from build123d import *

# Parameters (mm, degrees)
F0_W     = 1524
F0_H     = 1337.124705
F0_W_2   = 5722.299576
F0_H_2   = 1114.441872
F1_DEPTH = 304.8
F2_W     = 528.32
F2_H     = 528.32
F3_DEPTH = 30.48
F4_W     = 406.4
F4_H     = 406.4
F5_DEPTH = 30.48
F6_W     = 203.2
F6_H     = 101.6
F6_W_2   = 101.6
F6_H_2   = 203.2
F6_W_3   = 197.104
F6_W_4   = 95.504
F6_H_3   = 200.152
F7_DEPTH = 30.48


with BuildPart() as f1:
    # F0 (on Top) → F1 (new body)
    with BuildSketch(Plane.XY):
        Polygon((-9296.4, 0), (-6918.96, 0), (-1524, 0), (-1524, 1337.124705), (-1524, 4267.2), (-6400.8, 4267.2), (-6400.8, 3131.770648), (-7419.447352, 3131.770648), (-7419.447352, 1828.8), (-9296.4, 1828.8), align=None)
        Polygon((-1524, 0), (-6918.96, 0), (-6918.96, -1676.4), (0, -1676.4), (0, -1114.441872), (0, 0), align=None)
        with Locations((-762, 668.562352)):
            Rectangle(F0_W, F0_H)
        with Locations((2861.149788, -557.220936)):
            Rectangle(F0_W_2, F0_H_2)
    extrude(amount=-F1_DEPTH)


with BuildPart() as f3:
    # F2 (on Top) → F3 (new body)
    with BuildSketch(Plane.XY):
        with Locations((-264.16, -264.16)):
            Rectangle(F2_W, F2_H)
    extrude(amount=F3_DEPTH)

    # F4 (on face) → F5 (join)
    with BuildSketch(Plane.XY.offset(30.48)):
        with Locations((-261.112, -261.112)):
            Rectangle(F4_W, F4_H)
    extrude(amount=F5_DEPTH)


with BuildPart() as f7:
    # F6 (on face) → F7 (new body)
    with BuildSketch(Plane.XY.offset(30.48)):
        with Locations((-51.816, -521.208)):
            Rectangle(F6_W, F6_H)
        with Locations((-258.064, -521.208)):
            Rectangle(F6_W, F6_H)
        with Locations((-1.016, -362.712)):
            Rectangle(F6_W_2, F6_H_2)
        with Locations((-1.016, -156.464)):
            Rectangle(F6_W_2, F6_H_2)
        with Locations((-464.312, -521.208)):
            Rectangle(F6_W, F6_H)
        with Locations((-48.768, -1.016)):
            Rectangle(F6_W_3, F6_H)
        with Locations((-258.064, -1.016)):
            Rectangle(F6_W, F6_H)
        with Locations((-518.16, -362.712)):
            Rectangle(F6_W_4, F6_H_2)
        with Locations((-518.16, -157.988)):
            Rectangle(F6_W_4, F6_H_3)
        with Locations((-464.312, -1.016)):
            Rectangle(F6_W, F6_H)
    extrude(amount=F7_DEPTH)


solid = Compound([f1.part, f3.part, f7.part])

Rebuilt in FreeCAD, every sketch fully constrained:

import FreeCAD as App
import Part
import Sketcher
Q = App.Units.Quantity

doc = App.newDocument("Part")
body = doc.addObject("PartDesign::Body", "Body")

sketch1 = body.newObject("Sketcher::SketchObject", "Sketch")
sketch1.AttachmentSupport = (doc.getObject("XY_Plane"), [""])
sketch1.MapMode = "FlatFace"
sketch1.addGeometry([
    Part.LineSegment(App.Vector(-9296, 1829, 0), App.Vector(-9296, 0, 0)),
    Part.LineSegment(App.Vector(-9296, 0, 0), App.Vector(-6919, 0, 0)),
    Part.LineSegment(App.Vector(-6919, 0, 0), App.Vector(-6919, -1676, 0)),
    Part.LineSegment(App.Vector(-6919, -1676, 0), App.Vector(0, -1676, 0)),
    Part.LineSegment(App.Vector(0, -1676, 0), App.Vector(0, -1114, 0)),
    Part.LineSegment(App.Vector(0, -1114, 0), App.Vector(5722, -1114, 0)),
    Part.LineSegment(App.Vector(5722, -1114, 0), App.Vector(5722, 0, 0)),
    Part.LineSegment(App.Vector(5722, 0, 0), App.Vector(0, 0, 0)),
    Part.LineSegment(App.Vector(0, 0, 0), App.Vector(0, 1337, 0)),
    Part.LineSegment(App.Vector(0, 1337, 0), App.Vector(-1524, 1337, 0)),
    Part.LineSegment(App.Vector(-1524, 1337, 0), App.Vector(-1524, 4267, 0)),
    Part.LineSegment(App.Vector(-1524, 4267, 0), App.Vector(-6401, 4267, 0)),
    Part.LineSegment(App.Vector(-6401, 4267, 0), App.Vector(-6401, 3132, 0)),
    Part.LineSegment(App.Vector(-6401, 3132, 0), App.Vector(-7419, 3132, 0)),
    Part.LineSegment(App.Vector(-7419, 3132, 0), App.Vector(-7419, 1829, 0)),
    Part.LineSegment(App.Vector(-7419, 1829, 0), App.Vector(-9296, 1829, 0)),
], False)
sketch1.addConstraint([
    Sketcher.Constraint("Coincident", 0, 2, 1, 1),
    Sketcher.Constraint("Coincident", 1, 2, 2, 1),
    Sketcher.Constraint("Coincident", 2, 2, 3, 1),
    Sketcher.Constraint("Coincident", 3, 2, 4, 1),
    Sketcher.Constraint("Coincident", 4, 2, 5, 1),
    Sketcher.Constraint("Coincident", 5, 2, 6, 1),
    Sketcher.Constraint("Coincident", 6, 2, 7, 1),
    Sketcher.Constraint("Coincident", 7, 2, 8, 1),
    Sketcher.Constraint("Coincident", 8, 2, 9, 1),
    Sketcher.Constraint("Coincident", 9, 2, 10, 1),
    Sketcher.Constraint("Coincident", 10, 2, 11, 1),
    Sketcher.Constraint("Coincident", 11, 2, 12, 1),
    Sketcher.Constraint("Coincident", 12, 2, 13, 1),
    Sketcher.Constraint("Coincident", 13, 2, 14, 1),
    Sketcher.Constraint("Coincident", 14, 2, 15, 1),
    Sketcher.Constraint("Coincident", 15, 2, 0, 1),
    Sketcher.Constraint("Vertical", 0),
    Sketcher.Constraint("Horizontal", 1),
    Sketcher.Constraint("Vertical", 2),
    Sketcher.Constraint("Horizontal", 3),
    Sketcher.Constraint("Vertical", 4),
    Sketcher.Constraint("Horizontal", 5),
    Sketcher.Constraint("Vertical", 6),
    Sketcher.Constraint("Horizontal", 7),
    Sketcher.Constraint("Vertical", 8),
    Sketcher.Constraint("Horizontal", 9),
    Sketcher.Constraint("Vertical", 10),
    Sketcher.Constraint("Horizontal", 11),
    Sketcher.Constraint("Vertical", 12),
    Sketcher.Constraint("Horizontal", 13),
    Sketcher.Constraint("Vertical", 14),
    Sketcher.Constraint("Horizontal", 15),
    Sketcher.Constraint("Coincident", 7, 2, -1, 1),
    Sketcher.Constraint("PointOnObject", 0, 2, -1),
    Sketcher.Constraint("PointOnObject", 3, 2, -2),
    Sketcher.Constraint("DistanceX", 9, 2, 9, 1, Q("60 in")),
    Sketcher.Constraint("DistanceX", 11, 2, 11, 1, Q("192 in")),
    Sketcher.Constraint("DistanceY", 0, 2, 0, 1, Q("72 in")),
    Sketcher.Constraint("DistanceY", 2, 2, 2, 1, Q("66 in")),
    Sketcher.Constraint("DistanceX", 1, 1, 1, 2, Q("93.6 in")),
    Sketcher.Constraint("DistanceX", 3, 1, 3, 2, Q("272.4 in")),
    Sketcher.Constraint("DistanceY", -1, 1, 10, 2, Q("168 in")),
    Sketcher.Constraint("DistanceX", 13, 2, 13, 1, 1018.647352),
    Sketcher.Constraint("DistanceY", 4, 1, 4, 2, 561.958128),
    Sketcher.Constraint("DistanceY", 12, 2, 12, 1, 1135.429352),
    Sketcher.Constraint("DistanceX", 5, 1, 5, 2, 5722.299576),
    Sketcher.Constraint("DistanceY", 8, 1, 8, 2, 1337.124705),
])
pad1 = body.newObject("PartDesign::Pad", "Pad")
pad1.Profile = sketch1
pad1.Length = Q("12 in")
pad1.Reversed = True
body2 = doc.addObject("PartDesign::Body", "Body001")

sketch2 = body2.newObject("Sketcher::SketchObject", "Sketch001")
sketch2.AttachmentSupport = (doc.getObject("XY_Plane001"), [""])
sketch2.MapMode = "FlatFace"
sketch2.addGeometry([
    Part.LineSegment(App.Vector(-528, 0, 0), App.Vector(-528, -528, 0)),
    Part.LineSegment(App.Vector(-528, -528, 0), App.Vector(0, -528, 0)),
    Part.LineSegment(App.Vector(0, -528, 0), App.Vector(0, 0, 0)),
    Part.LineSegment(App.Vector(0, 0, 0), App.Vector(-528, 0, 0)),
], False)
sketch2.addConstraint([
    Sketcher.Constraint("Coincident", 0, 2, 1, 1),
    Sketcher.Constraint("Coincident", 1, 2, 2, 1),
    Sketcher.Constraint("Coincident", 2, 2, 3, 1),
    Sketcher.Constraint("Coincident", 3, 2, 0, 1),
    Sketcher.Constraint("Vertical", 0),
    Sketcher.Constraint("Horizontal", 1),
    Sketcher.Constraint("Vertical", 2),
    Sketcher.Constraint("Horizontal", 3),
    Sketcher.Constraint("Coincident", 2, 2, -1, 1),
    Sketcher.Constraint("Equal", 3, 0),
    Sketcher.Constraint("DistanceX", 1, 1, 1, 2, Q("20.8 in")),
])
pad2 = body2.newObject("PartDesign::Pad", "Pad001")
pad2.Profile = sketch2
pad2.Length = Q("1.2 in")

sketch3 = body2.newObject("Sketcher::SketchObject", "Sketch002")
sketch3.AttachmentSupport = (doc.getObject("XY_Plane001"), [""])
sketch3.MapMode = "FlatFace"
sketch3.AttachmentOffset = App.Placement(App.Vector(0, 0, 1.2 * 25.4), App.Rotation())
sketch3.addGeometry([
    Part.LineSegment(App.Vector(-464, -58, 0), App.Vector(-464, -464, 0)),
    Part.LineSegment(App.Vector(-464, -464, 0), App.Vector(-58, -464, 0)),
    Part.LineSegment(App.Vector(-58, -464, 0), App.Vector(-58, -58, 0)),
    Part.LineSegment(App.Vector(-58, -58, 0), App.Vector(-464, -58, 0)),
], False)
sketch3.addConstraint([
    Sketcher.Constraint("Coincident", 0, 2, 1, 1),
    Sketcher.Constraint("Coincident", 1, 2, 2, 1),
    Sketcher.Constraint("Coincident", 2, 2, 3, 1),
    Sketcher.Constraint("Coincident", 3, 2, 0, 1),
    Sketcher.Constraint("Vertical", 0),
    Sketcher.Constraint("Horizontal", 1),
    Sketcher.Constraint("Vertical", 2),
    Sketcher.Constraint("Horizontal", 3),
    Sketcher.Constraint("Equal", 3, 0),
    Sketcher.Constraint("DistanceX", 1, 1, 1, 2, Q("16 in")),
    Sketcher.Constraint("DistanceX", 0, 2, -1, 1, Q("18.28 in")),
    Sketcher.Constraint("DistanceY", 0, 2, -1, 1, Q("18.28 in")),
])
pad3 = body2.newObject("PartDesign::Pad", "Pad002")
pad3.Profile = sketch3
pad3.Length = Q("1.2 in")
body3 = doc.addObject("PartDesign::Body", "Body002")
body3.AllowCompound = True

sketch4 = body3.newObject("Sketcher::SketchObject", "Sketch003")
sketch4.AttachmentSupport = (doc.getObject("XY_Plane002"), [""])
sketch4.MapMode = "FlatFace"
sketch4.AttachmentOffset = App.Placement(App.Vector(0, 0, 1.2 * 25.4), App.Rotation())
sketch4.addGeometry([
    Part.LineSegment(App.Vector(-153, -470, 0), App.Vector(-153, -572, 0)),
    Part.LineSegment(App.Vector(-153, -572, 0), App.Vector(50, -572, 0)),
    Part.LineSegment(App.Vector(50, -572, 0), App.Vector(50, -470, 0)),
    Part.LineSegment(App.Vector(50, -470, 0), App.Vector(-153, -470, 0)),
    Part.LineSegment(App.Vector(-360, -470, 0), App.Vector(-360, -572, 0)),
    Part.LineSegment(App.Vector(-360, -572, 0), App.Vector(-156, -572, 0)),
    Part.LineSegment(App.Vector(-156, -572, 0), App.Vector(-156, -470, 0)),
    Part.LineSegment(App.Vector(-156, -470, 0), App.Vector(-360, -470, 0)),
    Part.LineSegment(App.Vector(-52, -261, 0), App.Vector(-52, -464, 0)),
    Part.LineSegment(App.Vector(-52, -464, 0), App.Vector(50, -464, 0)),
    Part.LineSegment(App.Vector(50, -464, 0), App.Vector(50, -261, 0)),
    Part.LineSegment(App.Vector(50, -261, 0), App.Vector(-52, -261, 0)),
    Part.LineSegment(App.Vector(-52, -55, 0), App.Vector(-52, -258, 0)),
    Part.LineSegment(App.Vector(-52, -258, 0), App.Vector(50, -258, 0)),
    Part.LineSegment(App.Vector(50, -258, 0), App.Vector(50, -55, 0)),
    Part.LineSegment(App.Vector(50, -55, 0), App.Vector(-52, -55, 0)),
    Part.LineSegment(App.Vector(-566, -470, 0), App.Vector(-566, -572, 0)),
    Part.LineSegment(App.Vector(-566, -572, 0), App.Vector(-363, -572, 0)),
    Part.LineSegment(App.Vector(-363, -572, 0), App.Vector(-363, -470, 0)),
    Part.LineSegment(App.Vector(-363, -470, 0), App.Vector(-566, -470, 0)),
    Part.LineSegment(App.Vector(-147, 50, 0), App.Vector(-147, -52, 0)),
    Part.LineSegment(App.Vector(-147, -52, 0), App.Vector(50, -52, 0)),
    Part.LineSegment(App.Vector(50, -52, 0), App.Vector(50, 50, 0)),
    Part.LineSegment(App.Vector(50, 50, 0), App.Vector(-147, 50, 0)),
    Part.LineSegment(App.Vector(-360, 50, 0), App.Vector(-360, -52, 0)),
    Part.LineSegment(App.Vector(-360, -52, 0), App.Vector(-156, -52, 0)),
    Part.LineSegment(App.Vector(-156, -52, 0), App.Vector(-156, 50, 0)),
    Part.LineSegment(App.Vector(-156, 50, 0), App.Vector(-360, 50, 0)),
    Part.LineSegment(App.Vector(-566, -261, 0), App.Vector(-566, -464, 0)),
    Part.LineSegment(App.Vector(-566, -464, 0), App.Vector(-470, -464, 0)),
    Part.LineSegment(App.Vector(-470, -464, 0), App.Vector(-470, -261, 0)),
    Part.LineSegment(App.Vector(-470, -261, 0), App.Vector(-566, -261, 0)),
    Part.LineSegment(App.Vector(-566, -58, 0), App.Vector(-566, -258, 0)),
    Part.LineSegment(App.Vector(-566, -258, 0), App.Vector(-470, -258, 0)),
    Part.LineSegment(App.Vector(-470, -258, 0), App.Vector(-470, -58, 0)),
    Part.LineSegment(App.Vector(-470, -58, 0), App.Vector(-566, -58, 0)),
    Part.LineSegment(App.Vector(-566, 50, 0), App.Vector(-566, -52, 0)),
    Part.LineSegment(App.Vector(-566, -52, 0), App.Vector(-363, -52, 0)),
    Part.LineSegment(App.Vector(-363, -52, 0), App.Vector(-363, 50, 0)),
    Part.LineSegment(App.Vector(-363, 50, 0), App.Vector(-566, 50, 0)),
], False)
sketch4.addConstraint([
    Sketcher.Constraint("Coincident", 0, 2, 1, 1),
    Sketcher.Constraint("Coincident", 1, 2, 2, 1),
    Sketcher.Constraint("Coincident", 2, 2, 3, 1),
    Sketcher.Constraint("Coincident", 3, 2, 0, 1),
    Sketcher.Constraint("Coincident", 4, 2, 5, 1),
    Sketcher.Constraint("Coincident", 5, 2, 6, 1),
    Sketcher.Constraint("Coincident", 6, 2, 7, 1),
    Sketcher.Constraint("Coincident", 7, 2, 4, 1),
    Sketcher.Constraint("Coincident", 8, 2, 9, 1),
    Sketcher.Constraint("Coincident", 9, 2, 10, 1),
    Sketcher.Constraint("Coincident", 10, 2, 11, 1),
    Sketcher.Constraint("Coincident", 11, 2, 8, 1),
    Sketcher.Constraint("Coincident", 12, 2, 13, 1),
    Sketcher.Constraint("Coincident", 13, 2, 14, 1),
    Sketcher.Constraint("Coincident", 14, 2, 15, 1),
    Sketcher.Constraint("Coincident", 15, 2, 12, 1),
    Sketcher.Constraint("Coincident", 16, 2, 17, 1),
    Sketcher.Constraint("Coincident", 17, 2, 18, 1),
    Sketcher.Constraint("Coincident", 18, 2, 19, 1),
    Sketcher.Constraint("Coincident", 19, 2, 16, 1),
    Sketcher.Constraint("Coincident", 20, 2, 21, 1),
    Sketcher.Constraint("Coincident", 21, 2, 22, 1),
    Sketcher.Constraint("Coincident", 22, 2, 23, 1),
    Sketcher.Constraint("Coincident", 23, 2, 20, 1),
    Sketcher.Constraint("Coincident", 24, 2, 25, 1),
    Sketcher.Constraint("Coincident", 25, 2, 26, 1),
    Sketcher.Constraint("Coincident", 26, 2, 27, 1),
    Sketcher.Constraint("Coincident", 27, 2, 24, 1),
    Sketcher.Constraint("Coincident", 28, 2, 29, 1),
    Sketcher.Constraint("Coincident", 29, 2, 30, 1),
    Sketcher.Constraint("Coincident", 30, 2, 31, 1),
    Sketcher.Constraint("Coincident", 31, 2, 28, 1),
    Sketcher.Constraint("Coincident", 32, 2, 33, 1),
    Sketcher.Constraint("Coincident", 33, 2, 34, 1),
    Sketcher.Constraint("Coincident", 34, 2, 35, 1),
    Sketcher.Constraint("Coincident", 35, 2, 32, 1),
    Sketcher.Constraint("Coincident", 36, 2, 37, 1),
    Sketcher.Constraint("Coincident", 37, 2, 38, 1),
    Sketcher.Constraint("Coincident", 38, 2, 39, 1),
    Sketcher.Constraint("Coincident", 39, 2, 36, 1),
    Sketcher.Constraint("Vertical", 0),
    Sketcher.Constraint("Horizontal", 1),
    Sketcher.Constraint("Vertical", 2),
    Sketcher.Constraint("Horizontal", 3),
    Sketcher.Constraint("Vertical", 4),
    Sketcher.Constraint("Horizontal", 5),
    Sketcher.Constraint("Vertical", 6),
    Sketcher.Constraint("Horizontal", 7),
    Sketcher.Constraint("Vertical", 8),
    Sketcher.Constraint("Horizontal", 9),
    Sketcher.Constraint("Vertical", 10),
    Sketcher.Constraint("Horizontal", 11),
    Sketcher.Constraint("Vertical", 12),
    Sketcher.Constraint("Horizontal", 13),
    Sketcher.Constraint("Vertical", 14),
    Sketcher.Constraint("Horizontal", 15),
    Sketcher.Constraint("Vertical", 16),
    Sketcher.Constraint("Horizontal", 17),
    Sketcher.Constraint("Vertical", 18),
    Sketcher.Constraint("Horizontal", 19),
    Sketcher.Constraint("Vertical", 20),
    Sketcher.Constraint("Horizontal", 21),
    Sketcher.Constraint("Vertical", 22),
    Sketcher.Constraint("Horizontal", 23),
    Sketcher.Constraint("Vertical", 24),
    Sketcher.Constraint("Horizontal", 25),
    Sketcher.Constraint("Vertical", 26),
    Sketcher.Constraint("Horizontal", 27),
    Sketcher.Constraint("Vertical", 28),
    Sketcher.Constraint("Horizontal", 29),
    Sketcher.Constraint("Vertical", 30),
    Sketcher.Constraint("Horizontal", 31),
    Sketcher.Constraint("Vertical", 32),
    Sketcher.Constraint("Horizontal", 33),
    Sketcher.Constraint("Vertical", 34),
    Sketcher.Constraint("Horizontal", 35),
    Sketcher.Constraint("Vertical", 36),
    Sketcher.Constraint("Horizontal", 37),
    Sketcher.Constraint("Vertical", 38),
    Sketcher.Constraint("Horizontal", 39),
    Sketcher.Constraint("Horizontal", 1, 2, 4, 2),
    Sketcher.Constraint("Horizontal", 3, 2, 6, 2),
    Sketcher.Constraint("Horizontal", 5, 2, 16, 2),
    Sketcher.Constraint("Horizontal", 7, 2, 18, 2),
    Sketcher.Constraint("Horizontal", 21, 2, 24, 2),
    Sketcher.Constraint("Horizontal", 23, 2, 26, 2),
    Sketcher.Constraint("Horizontal", 9, 2, 28, 2),
    Sketcher.Constraint("Horizontal", 11, 2, 30, 2),
    Sketcher.Constraint("Horizontal", 13, 2, 32, 2),
    Sketcher.Constraint("Horizontal", 25, 2, 36, 2),
    Sketcher.Constraint("Horizontal", 27, 2, 38, 2),
    Sketcher.Constraint("Vertical", 2, 2, 9, 2),
    Sketcher.Constraint("Vertical", 11, 2, 12, 2),
    Sketcher.Constraint("Vertical", 10, 2, 13, 2),
    Sketcher.Constraint("Vertical", 14, 2, 21, 2),
    Sketcher.Constraint("Vertical", 7, 2, 24, 2),
    Sketcher.Constraint("Vertical", 6, 2, 25, 2),
    Sketcher.Constraint("Vertical", 19, 2, 28, 2),
    Sketcher.Constraint("Vertical", 31, 2, 32, 2),
    Sketcher.Constraint("Vertical", 30, 2, 33, 2),
    Sketcher.Constraint("Vertical", 35, 2, 36, 2),
    Sketcher.Constraint("Vertical", 18, 2, 37, 2),
    Sketcher.Constraint("Equal", 3, 5),
    Sketcher.Constraint("Equal", 7, 17),
    Sketcher.Constraint("Equal", 15, 0),
    Sketcher.Constraint("Equal", 39, 8),
    Sketcher.Constraint("Equal", 10, 12),
    Sketcher.Constraint("Equal", 18, 20),
    Sketcher.Constraint("DistanceX", 1, 1, 1, 2, Q("8 in")),
    Sketcher.Constraint("DistanceX", 9, 1, 9, 2, Q("4 in")),
    Sketcher.Constraint("DistanceY", 30, 2, 34, 2, Q("8 in")),
    Sketcher.Constraint("DistanceX", 21, 1, 21, 2, Q("7.76 in")),
    Sketcher.Constraint("DistanceX", 29, 1, 29, 2, Q("3.76 in")),
    Sketcher.Constraint("DistanceY", 32, 2, 32, 1, Q("7.88 in")),
    Sketcher.Constraint("DistanceX", 20, 2, -1, 1, Q("5.8 in")),
    Sketcher.Constraint("DistanceY", 0, 2, -1, 1, Q("22.52 in")),
    Sketcher.Constraint("DistanceX", 4, 2, -1, 1, Q("14.16 in")),
    Sketcher.Constraint("DistanceY", 8, 2, -1, 1, Q("18.28 in")),
    Sketcher.Constraint("DistanceX", 16, 2, -1, 1, Q("22.28 in")),
    Sketcher.Constraint("DistanceY", 20, 2, -1, 1, Q("2.04 in")),
])
pad4 = body3.newObject("PartDesign::Pad", "Pad003")
pad4.Profile = sketch4
pad4.Length = Q("1.2 in")

doc.recompute()
